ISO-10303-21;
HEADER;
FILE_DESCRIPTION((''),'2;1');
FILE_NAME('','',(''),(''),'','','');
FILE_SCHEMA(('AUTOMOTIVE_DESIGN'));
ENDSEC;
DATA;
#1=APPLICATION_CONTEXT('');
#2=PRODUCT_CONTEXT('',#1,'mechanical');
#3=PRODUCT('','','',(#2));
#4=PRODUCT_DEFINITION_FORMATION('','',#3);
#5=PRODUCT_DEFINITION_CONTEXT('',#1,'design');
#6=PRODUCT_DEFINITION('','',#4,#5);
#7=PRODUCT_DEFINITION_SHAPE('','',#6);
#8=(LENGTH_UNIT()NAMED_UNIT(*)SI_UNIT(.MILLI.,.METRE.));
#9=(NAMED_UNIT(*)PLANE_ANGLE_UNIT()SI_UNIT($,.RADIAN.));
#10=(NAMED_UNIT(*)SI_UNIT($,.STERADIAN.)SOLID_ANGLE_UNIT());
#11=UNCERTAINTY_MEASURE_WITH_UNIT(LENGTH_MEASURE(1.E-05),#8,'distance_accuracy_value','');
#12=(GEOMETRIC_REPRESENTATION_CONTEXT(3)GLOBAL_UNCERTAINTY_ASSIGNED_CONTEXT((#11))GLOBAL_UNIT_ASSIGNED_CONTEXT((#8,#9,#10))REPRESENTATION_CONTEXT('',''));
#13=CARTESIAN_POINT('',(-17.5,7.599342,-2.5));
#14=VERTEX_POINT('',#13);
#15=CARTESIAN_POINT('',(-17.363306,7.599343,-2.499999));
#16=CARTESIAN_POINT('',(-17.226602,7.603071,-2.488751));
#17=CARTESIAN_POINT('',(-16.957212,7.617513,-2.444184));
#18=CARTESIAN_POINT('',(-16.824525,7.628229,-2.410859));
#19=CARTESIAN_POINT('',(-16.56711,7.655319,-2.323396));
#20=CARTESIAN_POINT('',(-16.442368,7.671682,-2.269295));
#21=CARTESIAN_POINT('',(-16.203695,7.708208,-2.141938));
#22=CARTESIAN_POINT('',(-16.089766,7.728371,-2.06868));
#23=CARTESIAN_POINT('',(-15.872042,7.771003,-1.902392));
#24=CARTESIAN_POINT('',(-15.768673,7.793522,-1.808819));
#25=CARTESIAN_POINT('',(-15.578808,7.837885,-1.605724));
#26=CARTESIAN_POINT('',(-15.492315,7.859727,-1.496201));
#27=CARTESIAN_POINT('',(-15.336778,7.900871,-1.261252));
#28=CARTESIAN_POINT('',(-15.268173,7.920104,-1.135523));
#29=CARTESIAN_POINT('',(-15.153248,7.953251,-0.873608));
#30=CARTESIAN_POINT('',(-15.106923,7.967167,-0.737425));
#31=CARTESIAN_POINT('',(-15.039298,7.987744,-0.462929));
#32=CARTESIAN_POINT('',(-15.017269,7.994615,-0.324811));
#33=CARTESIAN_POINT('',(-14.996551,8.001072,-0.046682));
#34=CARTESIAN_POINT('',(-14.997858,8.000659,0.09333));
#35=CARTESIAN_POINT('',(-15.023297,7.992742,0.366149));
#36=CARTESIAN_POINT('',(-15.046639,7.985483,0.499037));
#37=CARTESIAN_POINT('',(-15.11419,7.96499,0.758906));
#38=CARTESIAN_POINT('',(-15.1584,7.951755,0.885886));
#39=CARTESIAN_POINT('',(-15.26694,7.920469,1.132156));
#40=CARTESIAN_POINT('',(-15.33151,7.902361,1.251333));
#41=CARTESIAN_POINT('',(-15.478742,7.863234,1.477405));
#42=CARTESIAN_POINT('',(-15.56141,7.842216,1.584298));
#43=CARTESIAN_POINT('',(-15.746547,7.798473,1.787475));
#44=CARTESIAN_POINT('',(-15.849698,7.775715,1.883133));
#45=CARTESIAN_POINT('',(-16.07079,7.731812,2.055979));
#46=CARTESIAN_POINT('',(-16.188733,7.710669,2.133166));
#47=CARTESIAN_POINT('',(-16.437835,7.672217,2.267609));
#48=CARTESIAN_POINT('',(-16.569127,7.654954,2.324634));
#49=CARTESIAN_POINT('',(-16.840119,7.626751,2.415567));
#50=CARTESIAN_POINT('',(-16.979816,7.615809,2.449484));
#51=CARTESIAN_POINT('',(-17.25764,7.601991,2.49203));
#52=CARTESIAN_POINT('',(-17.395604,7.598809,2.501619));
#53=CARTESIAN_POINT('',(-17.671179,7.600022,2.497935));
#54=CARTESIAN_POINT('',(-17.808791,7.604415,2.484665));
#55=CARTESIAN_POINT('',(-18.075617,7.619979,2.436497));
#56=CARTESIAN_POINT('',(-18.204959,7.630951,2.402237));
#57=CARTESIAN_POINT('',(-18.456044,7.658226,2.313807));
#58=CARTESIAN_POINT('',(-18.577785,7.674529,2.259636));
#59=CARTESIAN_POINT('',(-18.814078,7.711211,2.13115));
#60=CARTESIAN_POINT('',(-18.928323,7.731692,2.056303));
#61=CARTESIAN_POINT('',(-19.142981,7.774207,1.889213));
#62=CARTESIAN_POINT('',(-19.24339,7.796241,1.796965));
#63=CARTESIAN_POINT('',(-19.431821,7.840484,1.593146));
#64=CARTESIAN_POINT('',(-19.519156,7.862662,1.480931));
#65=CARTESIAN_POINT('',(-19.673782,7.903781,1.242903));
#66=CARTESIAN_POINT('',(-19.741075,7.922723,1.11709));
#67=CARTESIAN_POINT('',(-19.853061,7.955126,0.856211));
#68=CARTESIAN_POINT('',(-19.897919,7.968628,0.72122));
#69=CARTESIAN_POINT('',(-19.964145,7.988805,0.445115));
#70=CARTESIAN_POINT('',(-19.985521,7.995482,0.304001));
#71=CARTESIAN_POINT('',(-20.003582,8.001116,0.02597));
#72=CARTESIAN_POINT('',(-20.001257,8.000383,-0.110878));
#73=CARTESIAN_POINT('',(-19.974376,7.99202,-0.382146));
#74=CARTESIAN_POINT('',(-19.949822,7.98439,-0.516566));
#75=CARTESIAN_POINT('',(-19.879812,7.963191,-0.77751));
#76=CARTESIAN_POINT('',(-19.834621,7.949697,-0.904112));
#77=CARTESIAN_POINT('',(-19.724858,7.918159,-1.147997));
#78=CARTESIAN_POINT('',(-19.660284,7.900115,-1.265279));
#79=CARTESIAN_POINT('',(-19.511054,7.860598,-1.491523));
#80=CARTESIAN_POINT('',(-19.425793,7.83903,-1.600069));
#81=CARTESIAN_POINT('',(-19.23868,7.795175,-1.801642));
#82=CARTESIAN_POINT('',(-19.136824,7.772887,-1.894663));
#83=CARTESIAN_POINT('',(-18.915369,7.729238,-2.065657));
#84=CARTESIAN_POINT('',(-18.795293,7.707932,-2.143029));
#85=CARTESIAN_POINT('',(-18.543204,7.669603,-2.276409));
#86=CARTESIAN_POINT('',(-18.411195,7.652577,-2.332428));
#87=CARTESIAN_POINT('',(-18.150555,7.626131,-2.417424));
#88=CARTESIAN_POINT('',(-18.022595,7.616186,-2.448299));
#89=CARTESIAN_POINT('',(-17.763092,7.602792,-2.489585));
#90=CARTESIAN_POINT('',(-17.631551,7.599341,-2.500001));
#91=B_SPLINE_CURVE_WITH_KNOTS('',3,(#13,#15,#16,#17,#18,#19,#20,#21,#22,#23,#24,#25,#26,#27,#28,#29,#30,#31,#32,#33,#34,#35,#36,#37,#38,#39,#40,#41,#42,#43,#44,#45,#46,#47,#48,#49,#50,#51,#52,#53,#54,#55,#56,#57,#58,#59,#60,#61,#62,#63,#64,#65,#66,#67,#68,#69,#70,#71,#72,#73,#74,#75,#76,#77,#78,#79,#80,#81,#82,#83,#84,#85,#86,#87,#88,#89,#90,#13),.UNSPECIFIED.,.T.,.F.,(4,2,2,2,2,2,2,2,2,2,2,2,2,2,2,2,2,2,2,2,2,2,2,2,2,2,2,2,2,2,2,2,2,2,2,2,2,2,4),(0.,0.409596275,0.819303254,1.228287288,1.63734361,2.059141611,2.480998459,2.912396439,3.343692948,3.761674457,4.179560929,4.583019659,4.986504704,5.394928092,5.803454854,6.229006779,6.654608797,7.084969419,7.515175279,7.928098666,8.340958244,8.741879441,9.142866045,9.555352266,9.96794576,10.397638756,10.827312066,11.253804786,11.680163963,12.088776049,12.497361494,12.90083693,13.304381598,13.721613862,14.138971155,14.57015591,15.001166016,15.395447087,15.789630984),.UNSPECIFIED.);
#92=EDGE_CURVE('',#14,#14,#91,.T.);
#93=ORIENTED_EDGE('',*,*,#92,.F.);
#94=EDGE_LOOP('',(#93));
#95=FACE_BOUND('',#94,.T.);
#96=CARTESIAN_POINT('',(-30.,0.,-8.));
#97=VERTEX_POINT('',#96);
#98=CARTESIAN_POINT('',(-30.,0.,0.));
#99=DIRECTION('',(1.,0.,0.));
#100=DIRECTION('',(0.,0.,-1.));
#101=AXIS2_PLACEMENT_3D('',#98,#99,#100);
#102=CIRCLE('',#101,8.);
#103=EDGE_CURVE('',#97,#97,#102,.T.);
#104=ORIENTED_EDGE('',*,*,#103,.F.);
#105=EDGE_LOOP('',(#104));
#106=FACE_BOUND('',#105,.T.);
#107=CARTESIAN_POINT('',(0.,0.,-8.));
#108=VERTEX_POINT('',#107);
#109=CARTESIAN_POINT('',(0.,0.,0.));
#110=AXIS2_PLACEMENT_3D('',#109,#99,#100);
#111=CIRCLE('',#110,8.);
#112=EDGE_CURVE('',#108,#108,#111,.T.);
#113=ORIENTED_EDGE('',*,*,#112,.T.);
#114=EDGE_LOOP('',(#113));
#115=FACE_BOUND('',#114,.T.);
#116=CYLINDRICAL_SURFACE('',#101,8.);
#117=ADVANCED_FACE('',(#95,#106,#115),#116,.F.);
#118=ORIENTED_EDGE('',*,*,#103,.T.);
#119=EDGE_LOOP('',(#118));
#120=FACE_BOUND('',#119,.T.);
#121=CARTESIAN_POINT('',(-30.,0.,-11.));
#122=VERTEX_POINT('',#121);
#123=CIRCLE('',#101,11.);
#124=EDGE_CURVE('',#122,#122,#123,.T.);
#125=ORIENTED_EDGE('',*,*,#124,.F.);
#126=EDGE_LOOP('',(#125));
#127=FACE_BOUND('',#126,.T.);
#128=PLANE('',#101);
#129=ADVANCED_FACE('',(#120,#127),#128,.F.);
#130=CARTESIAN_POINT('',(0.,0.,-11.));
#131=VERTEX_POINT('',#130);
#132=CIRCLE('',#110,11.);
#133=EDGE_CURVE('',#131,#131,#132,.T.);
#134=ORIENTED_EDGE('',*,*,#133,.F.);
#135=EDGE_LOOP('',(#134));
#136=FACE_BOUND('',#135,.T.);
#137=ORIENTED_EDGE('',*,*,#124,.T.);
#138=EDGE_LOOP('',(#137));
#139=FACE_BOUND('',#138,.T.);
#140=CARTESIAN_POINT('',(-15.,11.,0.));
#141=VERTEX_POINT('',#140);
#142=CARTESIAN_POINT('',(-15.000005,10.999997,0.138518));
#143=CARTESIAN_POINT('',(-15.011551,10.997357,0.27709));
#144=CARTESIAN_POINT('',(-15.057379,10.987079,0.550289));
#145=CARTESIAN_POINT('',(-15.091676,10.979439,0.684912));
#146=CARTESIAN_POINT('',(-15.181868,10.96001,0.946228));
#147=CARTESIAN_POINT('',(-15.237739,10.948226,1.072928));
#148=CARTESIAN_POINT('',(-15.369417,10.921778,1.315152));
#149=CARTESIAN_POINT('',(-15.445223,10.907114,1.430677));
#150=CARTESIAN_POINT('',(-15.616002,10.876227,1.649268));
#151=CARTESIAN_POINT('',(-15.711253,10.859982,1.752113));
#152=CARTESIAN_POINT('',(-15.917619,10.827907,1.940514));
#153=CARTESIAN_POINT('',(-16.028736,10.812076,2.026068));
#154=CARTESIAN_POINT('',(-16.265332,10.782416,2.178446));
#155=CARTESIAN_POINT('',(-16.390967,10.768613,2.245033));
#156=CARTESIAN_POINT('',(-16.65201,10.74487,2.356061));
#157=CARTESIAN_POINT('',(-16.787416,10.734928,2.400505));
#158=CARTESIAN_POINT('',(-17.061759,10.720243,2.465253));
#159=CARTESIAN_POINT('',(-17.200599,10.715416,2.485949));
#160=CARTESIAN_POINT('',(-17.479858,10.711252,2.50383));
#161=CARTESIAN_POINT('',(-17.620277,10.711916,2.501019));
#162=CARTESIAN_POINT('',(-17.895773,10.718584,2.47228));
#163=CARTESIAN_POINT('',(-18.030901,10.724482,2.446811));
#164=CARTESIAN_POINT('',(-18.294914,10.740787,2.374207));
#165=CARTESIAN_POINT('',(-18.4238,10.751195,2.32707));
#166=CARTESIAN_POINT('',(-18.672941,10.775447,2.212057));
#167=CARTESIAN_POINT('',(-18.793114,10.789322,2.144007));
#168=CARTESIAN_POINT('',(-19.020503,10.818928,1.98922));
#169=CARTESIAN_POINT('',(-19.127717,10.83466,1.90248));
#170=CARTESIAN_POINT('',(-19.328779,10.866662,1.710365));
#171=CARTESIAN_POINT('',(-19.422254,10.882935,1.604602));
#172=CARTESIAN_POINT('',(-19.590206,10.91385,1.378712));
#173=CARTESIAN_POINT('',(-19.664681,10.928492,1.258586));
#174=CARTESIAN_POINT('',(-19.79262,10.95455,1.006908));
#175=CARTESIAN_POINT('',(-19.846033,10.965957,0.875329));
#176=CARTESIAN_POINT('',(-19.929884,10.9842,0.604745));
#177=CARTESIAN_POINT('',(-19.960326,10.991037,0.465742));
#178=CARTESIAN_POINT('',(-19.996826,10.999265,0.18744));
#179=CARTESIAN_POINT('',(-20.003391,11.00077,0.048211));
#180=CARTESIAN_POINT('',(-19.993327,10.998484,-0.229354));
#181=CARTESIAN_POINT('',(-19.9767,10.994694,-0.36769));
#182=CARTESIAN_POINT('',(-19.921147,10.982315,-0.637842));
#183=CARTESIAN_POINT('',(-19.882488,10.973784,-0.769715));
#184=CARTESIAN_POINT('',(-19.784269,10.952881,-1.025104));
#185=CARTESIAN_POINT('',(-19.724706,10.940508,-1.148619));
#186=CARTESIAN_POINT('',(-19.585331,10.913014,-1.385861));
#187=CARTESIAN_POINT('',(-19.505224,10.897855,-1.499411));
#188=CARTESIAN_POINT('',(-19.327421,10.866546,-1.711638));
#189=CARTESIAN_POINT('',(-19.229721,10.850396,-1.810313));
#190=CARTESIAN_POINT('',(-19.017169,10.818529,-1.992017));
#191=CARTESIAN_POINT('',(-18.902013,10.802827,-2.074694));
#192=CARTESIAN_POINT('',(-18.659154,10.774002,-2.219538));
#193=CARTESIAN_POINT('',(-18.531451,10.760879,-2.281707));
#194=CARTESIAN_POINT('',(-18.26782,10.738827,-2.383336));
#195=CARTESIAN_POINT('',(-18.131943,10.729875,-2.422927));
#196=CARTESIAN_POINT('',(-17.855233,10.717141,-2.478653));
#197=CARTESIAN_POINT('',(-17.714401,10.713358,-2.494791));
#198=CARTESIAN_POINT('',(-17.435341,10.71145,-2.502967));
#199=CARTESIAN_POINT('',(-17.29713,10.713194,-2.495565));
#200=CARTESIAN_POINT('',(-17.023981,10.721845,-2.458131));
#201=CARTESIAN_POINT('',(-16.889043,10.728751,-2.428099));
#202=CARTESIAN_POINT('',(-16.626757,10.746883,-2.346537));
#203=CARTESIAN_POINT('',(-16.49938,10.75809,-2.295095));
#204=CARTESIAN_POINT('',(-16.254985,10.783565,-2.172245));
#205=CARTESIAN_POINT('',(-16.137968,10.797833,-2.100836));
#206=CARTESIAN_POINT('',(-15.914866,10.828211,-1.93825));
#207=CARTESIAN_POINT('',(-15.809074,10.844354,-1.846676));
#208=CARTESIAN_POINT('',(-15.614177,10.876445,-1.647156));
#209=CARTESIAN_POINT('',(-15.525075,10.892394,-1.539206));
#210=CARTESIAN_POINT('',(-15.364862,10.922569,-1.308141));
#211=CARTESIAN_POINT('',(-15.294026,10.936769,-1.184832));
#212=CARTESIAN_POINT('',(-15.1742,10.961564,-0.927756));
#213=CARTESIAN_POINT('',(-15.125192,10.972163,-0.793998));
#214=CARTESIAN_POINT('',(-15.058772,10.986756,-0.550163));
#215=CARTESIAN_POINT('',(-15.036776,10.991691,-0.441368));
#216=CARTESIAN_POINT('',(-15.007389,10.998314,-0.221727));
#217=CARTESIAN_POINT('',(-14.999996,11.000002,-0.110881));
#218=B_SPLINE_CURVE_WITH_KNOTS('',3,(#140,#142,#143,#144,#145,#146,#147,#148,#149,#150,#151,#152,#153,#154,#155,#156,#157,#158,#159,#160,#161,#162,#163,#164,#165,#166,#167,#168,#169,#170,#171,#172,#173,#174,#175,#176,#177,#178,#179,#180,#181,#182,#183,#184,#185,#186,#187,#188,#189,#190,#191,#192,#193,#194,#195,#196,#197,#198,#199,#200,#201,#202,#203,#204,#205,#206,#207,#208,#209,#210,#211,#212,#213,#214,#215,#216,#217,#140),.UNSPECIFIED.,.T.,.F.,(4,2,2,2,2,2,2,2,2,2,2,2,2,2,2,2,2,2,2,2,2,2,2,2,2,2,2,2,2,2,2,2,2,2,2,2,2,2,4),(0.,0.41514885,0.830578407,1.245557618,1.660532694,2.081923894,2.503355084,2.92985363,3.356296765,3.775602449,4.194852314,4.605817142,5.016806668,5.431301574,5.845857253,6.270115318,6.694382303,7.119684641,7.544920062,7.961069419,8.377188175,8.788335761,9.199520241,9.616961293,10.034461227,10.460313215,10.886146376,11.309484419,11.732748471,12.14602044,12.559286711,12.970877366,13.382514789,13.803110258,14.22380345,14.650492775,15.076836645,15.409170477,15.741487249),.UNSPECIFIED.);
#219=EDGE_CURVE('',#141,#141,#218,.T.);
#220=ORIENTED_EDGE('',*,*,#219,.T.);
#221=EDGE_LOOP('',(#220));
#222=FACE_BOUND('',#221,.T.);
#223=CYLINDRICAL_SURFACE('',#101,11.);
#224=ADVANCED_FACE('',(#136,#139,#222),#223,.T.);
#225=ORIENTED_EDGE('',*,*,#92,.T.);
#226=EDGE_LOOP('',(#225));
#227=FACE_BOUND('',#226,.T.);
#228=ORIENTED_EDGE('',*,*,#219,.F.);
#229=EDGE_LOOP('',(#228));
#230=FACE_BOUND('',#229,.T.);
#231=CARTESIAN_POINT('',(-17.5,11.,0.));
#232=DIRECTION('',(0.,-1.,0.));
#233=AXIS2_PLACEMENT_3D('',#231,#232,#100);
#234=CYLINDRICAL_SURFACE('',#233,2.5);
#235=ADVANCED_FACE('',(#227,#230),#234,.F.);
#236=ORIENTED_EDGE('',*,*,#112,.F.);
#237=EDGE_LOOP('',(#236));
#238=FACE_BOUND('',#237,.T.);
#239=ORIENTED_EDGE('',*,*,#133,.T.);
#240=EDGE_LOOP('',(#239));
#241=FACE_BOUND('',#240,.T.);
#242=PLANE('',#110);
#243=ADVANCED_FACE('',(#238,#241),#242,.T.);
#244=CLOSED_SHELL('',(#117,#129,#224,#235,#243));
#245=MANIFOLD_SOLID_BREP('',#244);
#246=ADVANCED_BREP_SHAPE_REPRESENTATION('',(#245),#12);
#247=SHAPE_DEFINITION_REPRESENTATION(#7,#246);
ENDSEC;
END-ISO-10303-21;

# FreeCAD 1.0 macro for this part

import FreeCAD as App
import Part
import Sketcher
Q = App.Units.Quantity

doc = App.newDocument("Part")
body = doc.addObject("PartDesign::Body", "Body")

# Sketch on YZ plane
sketch1 = body.newObject("Sketcher::SketchObject", "Sketch")
sketch1.AttachmentSupport = (doc.getObject("YZ_Plane"), [""])
sketch1.MapMode = "FlatFace"
sketch1.addGeometry([
    Part.Circle(App.Vector(0, 0, 0), App.Vector(0, 0, 1), 11),
    Part.Circle(App.Vector(0, 0, 0), App.Vector(0, 0, 1), 8),
], False)
sketch1.addConstraint([
    Sketcher.Constraint("Coincident", 0, 3, -1, 1),
    Sketcher.Constraint("Coincident", 1, 3, -1, 1),
    Sketcher.Constraint("Diameter", 0, Q("22 mm")),
    Sketcher.Constraint("Diameter", 1, Q("16 mm")),
])
pad1 = body.newObject("PartDesign::Pad", "Pad")
pad1.Profile = sketch1
pad1.Length = 30
pad1.Reversed = True

# Sketch on XZ plane
sketch2 = body.newObject("Sketcher::SketchObject", "Sketch001")
sketch2.AttachmentSupport = (doc.getObject("XZ_Plane"), [""])
sketch2.MapMode = "FlatFace"
sketch2.addGeometry(Part.Circle(App.Vector(-17.5, 0, 0), App.Vector(0, 0, 1), 2.5), False)
sketch2.addConstraint([
    Sketcher.Constraint("PointOnObject", 0, 3, -1),
    Sketcher.Constraint("Diameter", 0, Q("5 mm")),
    Sketcher.Constraint("DistanceX", 0, 3, -1, 1, Q("17.5 mm")),
])
pocket1 = body.newObject("PartDesign::Pocket", "Pocket")
pocket1.Profile = sketch2
pocket1.Type = "ThroughAll"

doc.recompute()
